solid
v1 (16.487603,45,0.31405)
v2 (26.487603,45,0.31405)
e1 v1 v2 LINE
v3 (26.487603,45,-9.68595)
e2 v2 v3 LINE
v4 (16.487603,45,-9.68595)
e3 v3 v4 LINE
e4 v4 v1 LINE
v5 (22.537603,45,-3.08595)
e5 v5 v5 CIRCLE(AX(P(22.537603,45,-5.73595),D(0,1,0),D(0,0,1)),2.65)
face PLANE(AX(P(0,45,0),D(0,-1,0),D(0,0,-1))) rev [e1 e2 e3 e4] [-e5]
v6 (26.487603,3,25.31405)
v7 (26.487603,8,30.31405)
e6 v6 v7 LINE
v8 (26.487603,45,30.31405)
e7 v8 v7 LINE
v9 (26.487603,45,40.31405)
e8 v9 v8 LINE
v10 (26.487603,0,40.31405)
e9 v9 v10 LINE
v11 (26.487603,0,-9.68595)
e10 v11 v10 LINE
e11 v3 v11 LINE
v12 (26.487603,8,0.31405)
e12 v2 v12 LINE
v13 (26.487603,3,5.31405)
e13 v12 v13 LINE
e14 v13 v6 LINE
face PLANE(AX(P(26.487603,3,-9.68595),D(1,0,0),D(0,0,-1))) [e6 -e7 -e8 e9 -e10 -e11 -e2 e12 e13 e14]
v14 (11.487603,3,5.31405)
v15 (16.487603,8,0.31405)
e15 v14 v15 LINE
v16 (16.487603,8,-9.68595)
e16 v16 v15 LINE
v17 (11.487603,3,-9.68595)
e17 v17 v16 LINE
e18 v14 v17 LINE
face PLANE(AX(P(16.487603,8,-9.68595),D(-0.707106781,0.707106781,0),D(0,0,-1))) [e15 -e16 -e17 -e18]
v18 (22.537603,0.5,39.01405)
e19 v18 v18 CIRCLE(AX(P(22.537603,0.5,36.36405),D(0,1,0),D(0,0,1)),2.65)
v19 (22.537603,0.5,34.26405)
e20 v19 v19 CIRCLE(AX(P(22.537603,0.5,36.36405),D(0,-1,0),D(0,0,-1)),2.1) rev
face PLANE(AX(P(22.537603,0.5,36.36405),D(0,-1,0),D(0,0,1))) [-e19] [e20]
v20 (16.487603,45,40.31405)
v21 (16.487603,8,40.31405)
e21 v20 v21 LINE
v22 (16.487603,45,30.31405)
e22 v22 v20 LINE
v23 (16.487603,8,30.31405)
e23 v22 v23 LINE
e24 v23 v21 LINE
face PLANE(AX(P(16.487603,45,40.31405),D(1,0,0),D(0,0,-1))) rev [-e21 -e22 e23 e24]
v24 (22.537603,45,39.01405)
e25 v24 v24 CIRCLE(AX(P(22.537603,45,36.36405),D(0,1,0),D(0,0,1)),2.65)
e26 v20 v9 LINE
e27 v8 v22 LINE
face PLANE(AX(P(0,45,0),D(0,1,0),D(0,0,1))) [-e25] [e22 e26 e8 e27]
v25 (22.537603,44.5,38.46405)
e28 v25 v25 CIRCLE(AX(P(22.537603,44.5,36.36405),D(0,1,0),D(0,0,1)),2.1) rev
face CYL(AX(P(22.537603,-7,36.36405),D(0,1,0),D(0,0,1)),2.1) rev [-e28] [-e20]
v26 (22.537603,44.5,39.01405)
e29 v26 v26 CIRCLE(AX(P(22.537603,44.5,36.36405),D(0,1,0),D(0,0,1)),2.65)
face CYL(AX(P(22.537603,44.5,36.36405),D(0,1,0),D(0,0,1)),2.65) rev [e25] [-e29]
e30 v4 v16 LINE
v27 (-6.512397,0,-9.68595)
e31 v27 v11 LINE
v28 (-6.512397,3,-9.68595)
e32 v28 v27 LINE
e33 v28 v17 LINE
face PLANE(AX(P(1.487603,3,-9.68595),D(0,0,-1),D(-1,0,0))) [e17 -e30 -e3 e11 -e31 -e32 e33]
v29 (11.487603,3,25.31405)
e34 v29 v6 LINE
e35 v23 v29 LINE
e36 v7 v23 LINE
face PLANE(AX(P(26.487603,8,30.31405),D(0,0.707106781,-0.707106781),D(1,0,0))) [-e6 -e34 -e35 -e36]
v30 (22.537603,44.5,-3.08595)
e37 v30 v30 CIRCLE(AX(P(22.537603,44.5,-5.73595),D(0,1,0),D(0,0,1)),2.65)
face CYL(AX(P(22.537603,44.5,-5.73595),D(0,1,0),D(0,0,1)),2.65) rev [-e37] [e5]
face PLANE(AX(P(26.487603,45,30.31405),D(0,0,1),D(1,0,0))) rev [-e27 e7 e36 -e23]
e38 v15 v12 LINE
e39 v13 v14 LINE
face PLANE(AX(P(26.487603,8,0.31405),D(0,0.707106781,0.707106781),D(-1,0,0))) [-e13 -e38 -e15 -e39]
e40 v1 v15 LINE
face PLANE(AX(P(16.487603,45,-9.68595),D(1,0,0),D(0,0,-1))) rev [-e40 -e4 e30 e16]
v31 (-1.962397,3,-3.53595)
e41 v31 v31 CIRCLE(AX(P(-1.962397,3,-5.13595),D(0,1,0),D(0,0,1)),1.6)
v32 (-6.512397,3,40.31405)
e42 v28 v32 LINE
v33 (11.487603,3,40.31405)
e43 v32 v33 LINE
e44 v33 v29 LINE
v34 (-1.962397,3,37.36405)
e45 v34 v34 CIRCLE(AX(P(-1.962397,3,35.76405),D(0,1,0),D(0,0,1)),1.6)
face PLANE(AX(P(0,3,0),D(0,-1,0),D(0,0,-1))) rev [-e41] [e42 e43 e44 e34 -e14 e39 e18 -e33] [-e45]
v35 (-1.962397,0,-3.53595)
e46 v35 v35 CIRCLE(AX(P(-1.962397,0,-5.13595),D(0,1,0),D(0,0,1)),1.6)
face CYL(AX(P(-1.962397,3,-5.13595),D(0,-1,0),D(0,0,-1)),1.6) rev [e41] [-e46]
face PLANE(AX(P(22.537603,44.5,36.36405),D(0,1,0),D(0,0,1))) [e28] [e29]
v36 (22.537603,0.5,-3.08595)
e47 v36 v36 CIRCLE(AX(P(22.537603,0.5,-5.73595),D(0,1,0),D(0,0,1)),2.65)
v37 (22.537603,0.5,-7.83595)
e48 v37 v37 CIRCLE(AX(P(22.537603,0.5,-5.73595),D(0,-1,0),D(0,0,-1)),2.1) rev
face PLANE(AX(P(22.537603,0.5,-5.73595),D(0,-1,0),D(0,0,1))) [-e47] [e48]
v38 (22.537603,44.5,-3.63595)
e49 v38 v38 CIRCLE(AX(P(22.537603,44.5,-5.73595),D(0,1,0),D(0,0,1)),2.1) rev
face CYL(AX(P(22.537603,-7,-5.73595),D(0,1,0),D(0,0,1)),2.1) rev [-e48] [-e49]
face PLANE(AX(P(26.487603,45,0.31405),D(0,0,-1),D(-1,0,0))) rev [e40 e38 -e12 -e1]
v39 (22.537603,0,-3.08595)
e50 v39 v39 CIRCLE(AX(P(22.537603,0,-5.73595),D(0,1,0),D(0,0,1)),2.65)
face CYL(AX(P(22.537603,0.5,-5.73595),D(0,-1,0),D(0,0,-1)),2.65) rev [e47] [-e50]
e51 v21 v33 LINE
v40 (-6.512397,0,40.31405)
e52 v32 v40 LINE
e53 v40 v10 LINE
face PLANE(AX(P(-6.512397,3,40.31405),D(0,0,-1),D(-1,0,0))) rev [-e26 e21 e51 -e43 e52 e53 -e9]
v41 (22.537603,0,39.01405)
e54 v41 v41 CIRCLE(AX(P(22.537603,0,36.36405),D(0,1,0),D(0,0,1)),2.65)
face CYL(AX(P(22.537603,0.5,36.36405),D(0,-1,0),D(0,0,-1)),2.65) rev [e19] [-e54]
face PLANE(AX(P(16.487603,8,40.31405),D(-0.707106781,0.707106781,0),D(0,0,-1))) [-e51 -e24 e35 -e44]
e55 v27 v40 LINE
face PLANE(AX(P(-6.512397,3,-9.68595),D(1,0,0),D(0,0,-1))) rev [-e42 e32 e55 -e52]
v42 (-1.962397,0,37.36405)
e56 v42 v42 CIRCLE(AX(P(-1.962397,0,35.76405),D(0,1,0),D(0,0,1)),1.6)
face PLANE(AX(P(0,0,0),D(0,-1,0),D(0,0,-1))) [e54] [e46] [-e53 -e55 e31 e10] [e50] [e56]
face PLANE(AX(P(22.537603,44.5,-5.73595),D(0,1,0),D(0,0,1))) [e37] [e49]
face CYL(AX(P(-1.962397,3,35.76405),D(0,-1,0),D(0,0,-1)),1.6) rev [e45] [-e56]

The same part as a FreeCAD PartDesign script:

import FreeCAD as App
import Part
import Sketcher


def edges_at(feature, points):
    """Names of the edges that pass closest to the given points."""
    edges = feature.Shape.Edges
    near = lambda p: min(range(len(edges)), key=lambda i: edges[i].distToShape(Part.Vertex(*p))[0])
    return sorted({f"Edge{near(p) + 1}" for p in points})

doc = App.newDocument("Part")
body = doc.addObject("PartDesign::Body", "Body")

# Sketch on XZ plane
sketch1 = body.newObject("Sketcher::SketchObject", "Sketch")
sketch1.AttachmentSupport = (doc.getObject("XZ_Plane"), [""])
sketch1.MapMode = "FlatFace"
sketch1.addGeometry(Part.LineSegment(App.Vector(26.5, -9.7, 0), App.Vector(-6.5, -9.7, 0)), False)
sketch1.addGeometry(Part.LineSegment(App.Vector(-6.5, -9.7, 0), App.Vector(-6.5, 40.3, 0)), False)
sketch1.addGeometry(Part.LineSegment(App.Vector(-6.5, 40.3, 0), App.Vector(26.5, 40.3, 0)), False)
sketch1.addGeometry(Part.LineSegment(App.Vector(26.5, 40.3, 0), App.Vector(26.5, -9.7, 0)), False)
sketch1.addGeometry(Part.Circle(App.Vector(-2, 35.8, 0), App.Vector(0, 0, 1), 1.6), False)
sketch1.addGeometry(Part.Circle(App.Vector(-2, -5.1, 0), App.Vector(0, 0, 1), 1.6), False)
sketch1.addConstraint(Sketcher.Constraint("Coincident", 0, 2, 1, 1))
sketch1.addConstraint(Sketcher.Constraint("Coincident", 1, 2, 2, 1))
sketch1.addConstraint(Sketcher.Constraint("Coincident", 2, 2, 3, 1))
sketch1.addConstraint(Sketcher.Constraint("Coincident", 3, 2, 0, 1))
sketch1.addConstraint(Sketcher.Constraint("Horizontal", 0))
sketch1.addConstraint(Sketcher.Constraint("Vertical", 1))
sketch1.addConstraint(Sketcher.Constraint("Horizontal", 2))
sketch1.addConstraint(Sketcher.Constraint("Vertical", 3))
sketch1.addConstraint(Sketcher.Constraint("Equal", 4, 5))
sketch1.addConstraint(Sketcher.Constraint("Vertical", 4, 3, 5, 3))
sketch1.addConstraint(Sketcher.Constraint("Diameter", 4, 3.2))
sketch1.addConstraint(Sketcher.Constraint("DistanceX", 0, 2, 0, 1, 33.0))
sketch1.addConstraint(Sketcher.Constraint("DistanceY", 1, 1, 1, 2, 50.0))
sketch1.addConstraint(Sketcher.Constraint("DistanceY", 5, 3, 4, 3, 40.9))
sketch1.addConstraint(Sketcher.Constraint("DistanceX", 0, 2, 5, 3, 4.55))
sketch1.addConstraint(Sketcher.Constraint("DistanceY", 0, 2, 5, 3, 4.55))
sketch1.addConstraint(Sketcher.Constraint("DistanceY", -1, 1, 4, 3, 35.76405))
sketch1.addConstraint(Sketcher.Constraint("DistanceX", 4, 3, -1, 1, 1.962397))
pad1 = body.newObject("PartDesign::Pad", "Pad")
pad1.Profile = sketch1
pad1.Length = 3
pad1.Reversed = True

# Sketch on XZ plane
sketch2 = body.newObject("Sketcher::SketchObject", "Sketch001")
sketch2.AttachmentSupport = (doc.getObject("XZ_Plane"), [""])
sketch2.MapMode = "FlatFace"
sketch2.AttachmentOffset = App.Placement(App.Vector(0, 0, -3), App.Rotation())
sketch2.addGeometry(Part.LineSegment(App.Vector(16, 30, 0), App.Vector(16, 40, 0)), False)
sketch2.addGeometry(Part.LineSegment(App.Vector(16, 40, 0), App.Vector(26, 40, 0)), False)
sketch2.addGeometry(Part.LineSegment(App.Vector(26, 40, 0), App.Vector(26, 30, 0)), False)
sketch2.addGeometry(Part.LineSegment(App.Vector(26, 30, 0), App.Vector(16, 30, 0)), False)
sketch2.addGeometry(Part.LineSegment(App.Vector(16, -10, 0), App.Vector(16, 0, 0)), False)
sketch2.addGeometry(Part.LineSegment(App.Vector(16, 0, 0), App.Vector(26, 0, 0)), False)
sketch2.addGeometry(Part.LineSegment(App.Vector(26, 0, 0), App.Vector(26, -10, 0)), False)
sketch2.addGeometry(Part.LineSegment(App.Vector(26, -10, 0), App.Vector(16, -10, 0)), False)
sketch2.addConstraint(Sketcher.Constraint("Coincident", 0, 2, 1, 1))
sketch2.addConstraint(Sketcher.Constraint("Coincident", 1, 2, 2, 1))
sketch2.addConstraint(Sketcher.Constraint("Coincident", 2, 2, 3, 1))
sketch2.addConstraint(Sketcher.Constraint("Coincident", 3, 2, 0, 1))
sketch2.addConstraint(Sketcher.Constraint("Coincident", 4, 2, 5, 1))
sketch2.addConstraint(Sketcher.Constraint("Coincident", 5, 2, 6, 1))
sketch2.addConstraint(Sketcher.Constraint("Coincident", 6, 2, 7, 1))
sketch2.addConstraint(Sketcher.Constraint("Coincident", 7, 2, 4, 1))
sketch2.addConstraint(Sketcher.Constraint("Vertical", 0))
sketch2.addConstraint(Sketcher.Constraint("Horizontal", 1))
sketch2.addConstraint(Sketcher.Constraint("Vertical", 2))
sketch2.addConstraint(Sketcher.Constraint("Horizontal", 3))
sketch2.addConstraint(Sketcher.Constraint("Vertical", 4))
sketch2.addConstraint(Sketcher.Constraint("Horizontal", 5))
sketch2.addConstraint(Sketcher.Constraint("Vertical", 6))
sketch2.addConstraint(Sketcher.Constraint("Horizontal", 7))
sketch2.addConstraint(Sketcher.Constraint("Vertical", 3, 2, 4, 2))
sketch2.addConstraint(Sketcher.Constraint("Vertical", 2, 2, 5, 2))
sketch2.addConstraint(Sketcher.Constraint("Equal", 7, 0))
sketch2.addConstraint(Sketcher.Constraint("Equal", 2, 4))
sketch2.addConstraint(Sketcher.Constraint("DistanceX", 1, 1, 1, 2, 10.0))
sketch2.addConstraint(Sketcher.Constraint("DistanceY", 4, 2, 3, 2, 30.0))
sketch2.addConstraint(Sketcher.Constraint("DistanceY", -1, 1, 0, 2, 40.31405))
sketch2.addConstraint(Sketcher.Constraint("DistanceX", -1, 1, 0, 2, 16.487603))
pad2 = body.newObject("PartDesign::Pad", "Pad001")
pad2.Profile = sketch2
pad2.Length = 42
pad2.Reversed = True
doc.recompute()

chamfer = body.newObject("PartDesign::Chamfer", "Chamfer")
chamfer.Base = (pad2, edges_at(pad2, [
    (21.488, 3, 30.314),
    (16.488, 3, 35.314),
    (16.488, 3, -4.686),
    (21.488, 3, 0.314),
]))
chamfer.Size = 5

# Sketch on XZ plane
sketch3 = body.newObject("Sketcher::SketchObject", "Sketch002")
sketch3.AttachmentSupport = (doc.getObject("XZ_Plane"), [""])
sketch3.MapMode = "FlatFace"
sketch3.AttachmentOffset = App.Placement(App.Vector(0, 0, -45), App.Rotation())
sketch3.addGeometry(Part.Circle(App.Vector(22.5, 36.4, 0), App.Vector(0, 0, 1), 2.1), False)
sketch3.addGeometry(Part.Circle(App.Vector(22.5, -5.7, 0), App.Vector(0, 0, 1), 2.1), False)
sketch3.addConstraint(Sketcher.Constraint("Equal", 0, 1))
sketch3.addConstraint(Sketcher.Constraint("Vertical", 0, 3, 1, 3))
sketch3.addConstraint(Sketcher.Constraint("Diameter", 0, 4.2))
sketch3.addConstraint(Sketcher.Constraint("DistanceY", 1, 3, 0, 3, 42.1))
sketch3.addConstraint(Sketcher.Constraint("DistanceY", -1, 1, 0, 3, 36.36405))
sketch3.addConstraint(Sketcher.Constraint("DistanceX", -1, 1, 0, 3, 22.537603))
pocket1 = body.newObject("PartDesign::Pocket", "Pocket")
pocket1.Profile = sketch3
pocket1.Length = 52
pocket1.Reversed = True

# Sketch on XZ plane
sketch4 = body.newObject("Sketcher::SketchObject", "Sketch003")
sketch4.AttachmentSupport = (doc.getObject("XZ_Plane"), [""])
sketch4.MapMode = "FlatFace"
sketch4.AttachmentOffset = App.Placement(App.Vector(0, 0, -45), App.Rotation())
sketch4.addGeometry(Part.Circle(App.Vector(22.5, 36.4, 0), App.Vector(0, 0, 1), 2.6), False)
sketch4.addGeometry(Part.Circle(App.Vector(22.5, -5.7, 0), App.Vector(0, 0, 1), 2.6), False)
sketch4.addConstraint(Sketcher.Constraint("Equal", 0, 1))
sketch4.addConstraint(Sketcher.Constraint("Vertical", 0, 3, 1, 3))
sketch4.addConstraint(Sketcher.Constraint("Diameter", 0, 5.3))
sketch4.addConstraint(Sketcher.Constraint("DistanceY", 1, 3, 0, 3, 42.1))
sketch4.addConstraint(Sketcher.Constraint("DistanceY", -1, 1, 0, 3, 36.36405))
sketch4.addConstraint(Sketcher.Constraint("DistanceX", -1, 1, 0, 3, 22.537603))
pocket2 = body.newObject("PartDesign::Pocket", "Pocket001")
pocket2.Profile = sketch4
pocket2.Length = 0.5
pocket2.Reversed = True
doc.recompute()

datumplane = body.newObject("PartDesign::Plane", "DatumPlane")
datumplane.AttachmentSupport = (doc.getObject("XZ_Plane"), [""])
datumplane.MapMode = "FlatFace"
datumplane.AttachmentOffset = App.Placement(App.Vector(0, 0, -22.5), App.Rotation())
mirrored = body.newObject("PartDesign::Mirrored", "Mirrored")
mirrored.Originals = [pocket2]
mirrored.MirrorPlane = (datumplane, [""])
body.Tip = mirrored

doc.recompute()
